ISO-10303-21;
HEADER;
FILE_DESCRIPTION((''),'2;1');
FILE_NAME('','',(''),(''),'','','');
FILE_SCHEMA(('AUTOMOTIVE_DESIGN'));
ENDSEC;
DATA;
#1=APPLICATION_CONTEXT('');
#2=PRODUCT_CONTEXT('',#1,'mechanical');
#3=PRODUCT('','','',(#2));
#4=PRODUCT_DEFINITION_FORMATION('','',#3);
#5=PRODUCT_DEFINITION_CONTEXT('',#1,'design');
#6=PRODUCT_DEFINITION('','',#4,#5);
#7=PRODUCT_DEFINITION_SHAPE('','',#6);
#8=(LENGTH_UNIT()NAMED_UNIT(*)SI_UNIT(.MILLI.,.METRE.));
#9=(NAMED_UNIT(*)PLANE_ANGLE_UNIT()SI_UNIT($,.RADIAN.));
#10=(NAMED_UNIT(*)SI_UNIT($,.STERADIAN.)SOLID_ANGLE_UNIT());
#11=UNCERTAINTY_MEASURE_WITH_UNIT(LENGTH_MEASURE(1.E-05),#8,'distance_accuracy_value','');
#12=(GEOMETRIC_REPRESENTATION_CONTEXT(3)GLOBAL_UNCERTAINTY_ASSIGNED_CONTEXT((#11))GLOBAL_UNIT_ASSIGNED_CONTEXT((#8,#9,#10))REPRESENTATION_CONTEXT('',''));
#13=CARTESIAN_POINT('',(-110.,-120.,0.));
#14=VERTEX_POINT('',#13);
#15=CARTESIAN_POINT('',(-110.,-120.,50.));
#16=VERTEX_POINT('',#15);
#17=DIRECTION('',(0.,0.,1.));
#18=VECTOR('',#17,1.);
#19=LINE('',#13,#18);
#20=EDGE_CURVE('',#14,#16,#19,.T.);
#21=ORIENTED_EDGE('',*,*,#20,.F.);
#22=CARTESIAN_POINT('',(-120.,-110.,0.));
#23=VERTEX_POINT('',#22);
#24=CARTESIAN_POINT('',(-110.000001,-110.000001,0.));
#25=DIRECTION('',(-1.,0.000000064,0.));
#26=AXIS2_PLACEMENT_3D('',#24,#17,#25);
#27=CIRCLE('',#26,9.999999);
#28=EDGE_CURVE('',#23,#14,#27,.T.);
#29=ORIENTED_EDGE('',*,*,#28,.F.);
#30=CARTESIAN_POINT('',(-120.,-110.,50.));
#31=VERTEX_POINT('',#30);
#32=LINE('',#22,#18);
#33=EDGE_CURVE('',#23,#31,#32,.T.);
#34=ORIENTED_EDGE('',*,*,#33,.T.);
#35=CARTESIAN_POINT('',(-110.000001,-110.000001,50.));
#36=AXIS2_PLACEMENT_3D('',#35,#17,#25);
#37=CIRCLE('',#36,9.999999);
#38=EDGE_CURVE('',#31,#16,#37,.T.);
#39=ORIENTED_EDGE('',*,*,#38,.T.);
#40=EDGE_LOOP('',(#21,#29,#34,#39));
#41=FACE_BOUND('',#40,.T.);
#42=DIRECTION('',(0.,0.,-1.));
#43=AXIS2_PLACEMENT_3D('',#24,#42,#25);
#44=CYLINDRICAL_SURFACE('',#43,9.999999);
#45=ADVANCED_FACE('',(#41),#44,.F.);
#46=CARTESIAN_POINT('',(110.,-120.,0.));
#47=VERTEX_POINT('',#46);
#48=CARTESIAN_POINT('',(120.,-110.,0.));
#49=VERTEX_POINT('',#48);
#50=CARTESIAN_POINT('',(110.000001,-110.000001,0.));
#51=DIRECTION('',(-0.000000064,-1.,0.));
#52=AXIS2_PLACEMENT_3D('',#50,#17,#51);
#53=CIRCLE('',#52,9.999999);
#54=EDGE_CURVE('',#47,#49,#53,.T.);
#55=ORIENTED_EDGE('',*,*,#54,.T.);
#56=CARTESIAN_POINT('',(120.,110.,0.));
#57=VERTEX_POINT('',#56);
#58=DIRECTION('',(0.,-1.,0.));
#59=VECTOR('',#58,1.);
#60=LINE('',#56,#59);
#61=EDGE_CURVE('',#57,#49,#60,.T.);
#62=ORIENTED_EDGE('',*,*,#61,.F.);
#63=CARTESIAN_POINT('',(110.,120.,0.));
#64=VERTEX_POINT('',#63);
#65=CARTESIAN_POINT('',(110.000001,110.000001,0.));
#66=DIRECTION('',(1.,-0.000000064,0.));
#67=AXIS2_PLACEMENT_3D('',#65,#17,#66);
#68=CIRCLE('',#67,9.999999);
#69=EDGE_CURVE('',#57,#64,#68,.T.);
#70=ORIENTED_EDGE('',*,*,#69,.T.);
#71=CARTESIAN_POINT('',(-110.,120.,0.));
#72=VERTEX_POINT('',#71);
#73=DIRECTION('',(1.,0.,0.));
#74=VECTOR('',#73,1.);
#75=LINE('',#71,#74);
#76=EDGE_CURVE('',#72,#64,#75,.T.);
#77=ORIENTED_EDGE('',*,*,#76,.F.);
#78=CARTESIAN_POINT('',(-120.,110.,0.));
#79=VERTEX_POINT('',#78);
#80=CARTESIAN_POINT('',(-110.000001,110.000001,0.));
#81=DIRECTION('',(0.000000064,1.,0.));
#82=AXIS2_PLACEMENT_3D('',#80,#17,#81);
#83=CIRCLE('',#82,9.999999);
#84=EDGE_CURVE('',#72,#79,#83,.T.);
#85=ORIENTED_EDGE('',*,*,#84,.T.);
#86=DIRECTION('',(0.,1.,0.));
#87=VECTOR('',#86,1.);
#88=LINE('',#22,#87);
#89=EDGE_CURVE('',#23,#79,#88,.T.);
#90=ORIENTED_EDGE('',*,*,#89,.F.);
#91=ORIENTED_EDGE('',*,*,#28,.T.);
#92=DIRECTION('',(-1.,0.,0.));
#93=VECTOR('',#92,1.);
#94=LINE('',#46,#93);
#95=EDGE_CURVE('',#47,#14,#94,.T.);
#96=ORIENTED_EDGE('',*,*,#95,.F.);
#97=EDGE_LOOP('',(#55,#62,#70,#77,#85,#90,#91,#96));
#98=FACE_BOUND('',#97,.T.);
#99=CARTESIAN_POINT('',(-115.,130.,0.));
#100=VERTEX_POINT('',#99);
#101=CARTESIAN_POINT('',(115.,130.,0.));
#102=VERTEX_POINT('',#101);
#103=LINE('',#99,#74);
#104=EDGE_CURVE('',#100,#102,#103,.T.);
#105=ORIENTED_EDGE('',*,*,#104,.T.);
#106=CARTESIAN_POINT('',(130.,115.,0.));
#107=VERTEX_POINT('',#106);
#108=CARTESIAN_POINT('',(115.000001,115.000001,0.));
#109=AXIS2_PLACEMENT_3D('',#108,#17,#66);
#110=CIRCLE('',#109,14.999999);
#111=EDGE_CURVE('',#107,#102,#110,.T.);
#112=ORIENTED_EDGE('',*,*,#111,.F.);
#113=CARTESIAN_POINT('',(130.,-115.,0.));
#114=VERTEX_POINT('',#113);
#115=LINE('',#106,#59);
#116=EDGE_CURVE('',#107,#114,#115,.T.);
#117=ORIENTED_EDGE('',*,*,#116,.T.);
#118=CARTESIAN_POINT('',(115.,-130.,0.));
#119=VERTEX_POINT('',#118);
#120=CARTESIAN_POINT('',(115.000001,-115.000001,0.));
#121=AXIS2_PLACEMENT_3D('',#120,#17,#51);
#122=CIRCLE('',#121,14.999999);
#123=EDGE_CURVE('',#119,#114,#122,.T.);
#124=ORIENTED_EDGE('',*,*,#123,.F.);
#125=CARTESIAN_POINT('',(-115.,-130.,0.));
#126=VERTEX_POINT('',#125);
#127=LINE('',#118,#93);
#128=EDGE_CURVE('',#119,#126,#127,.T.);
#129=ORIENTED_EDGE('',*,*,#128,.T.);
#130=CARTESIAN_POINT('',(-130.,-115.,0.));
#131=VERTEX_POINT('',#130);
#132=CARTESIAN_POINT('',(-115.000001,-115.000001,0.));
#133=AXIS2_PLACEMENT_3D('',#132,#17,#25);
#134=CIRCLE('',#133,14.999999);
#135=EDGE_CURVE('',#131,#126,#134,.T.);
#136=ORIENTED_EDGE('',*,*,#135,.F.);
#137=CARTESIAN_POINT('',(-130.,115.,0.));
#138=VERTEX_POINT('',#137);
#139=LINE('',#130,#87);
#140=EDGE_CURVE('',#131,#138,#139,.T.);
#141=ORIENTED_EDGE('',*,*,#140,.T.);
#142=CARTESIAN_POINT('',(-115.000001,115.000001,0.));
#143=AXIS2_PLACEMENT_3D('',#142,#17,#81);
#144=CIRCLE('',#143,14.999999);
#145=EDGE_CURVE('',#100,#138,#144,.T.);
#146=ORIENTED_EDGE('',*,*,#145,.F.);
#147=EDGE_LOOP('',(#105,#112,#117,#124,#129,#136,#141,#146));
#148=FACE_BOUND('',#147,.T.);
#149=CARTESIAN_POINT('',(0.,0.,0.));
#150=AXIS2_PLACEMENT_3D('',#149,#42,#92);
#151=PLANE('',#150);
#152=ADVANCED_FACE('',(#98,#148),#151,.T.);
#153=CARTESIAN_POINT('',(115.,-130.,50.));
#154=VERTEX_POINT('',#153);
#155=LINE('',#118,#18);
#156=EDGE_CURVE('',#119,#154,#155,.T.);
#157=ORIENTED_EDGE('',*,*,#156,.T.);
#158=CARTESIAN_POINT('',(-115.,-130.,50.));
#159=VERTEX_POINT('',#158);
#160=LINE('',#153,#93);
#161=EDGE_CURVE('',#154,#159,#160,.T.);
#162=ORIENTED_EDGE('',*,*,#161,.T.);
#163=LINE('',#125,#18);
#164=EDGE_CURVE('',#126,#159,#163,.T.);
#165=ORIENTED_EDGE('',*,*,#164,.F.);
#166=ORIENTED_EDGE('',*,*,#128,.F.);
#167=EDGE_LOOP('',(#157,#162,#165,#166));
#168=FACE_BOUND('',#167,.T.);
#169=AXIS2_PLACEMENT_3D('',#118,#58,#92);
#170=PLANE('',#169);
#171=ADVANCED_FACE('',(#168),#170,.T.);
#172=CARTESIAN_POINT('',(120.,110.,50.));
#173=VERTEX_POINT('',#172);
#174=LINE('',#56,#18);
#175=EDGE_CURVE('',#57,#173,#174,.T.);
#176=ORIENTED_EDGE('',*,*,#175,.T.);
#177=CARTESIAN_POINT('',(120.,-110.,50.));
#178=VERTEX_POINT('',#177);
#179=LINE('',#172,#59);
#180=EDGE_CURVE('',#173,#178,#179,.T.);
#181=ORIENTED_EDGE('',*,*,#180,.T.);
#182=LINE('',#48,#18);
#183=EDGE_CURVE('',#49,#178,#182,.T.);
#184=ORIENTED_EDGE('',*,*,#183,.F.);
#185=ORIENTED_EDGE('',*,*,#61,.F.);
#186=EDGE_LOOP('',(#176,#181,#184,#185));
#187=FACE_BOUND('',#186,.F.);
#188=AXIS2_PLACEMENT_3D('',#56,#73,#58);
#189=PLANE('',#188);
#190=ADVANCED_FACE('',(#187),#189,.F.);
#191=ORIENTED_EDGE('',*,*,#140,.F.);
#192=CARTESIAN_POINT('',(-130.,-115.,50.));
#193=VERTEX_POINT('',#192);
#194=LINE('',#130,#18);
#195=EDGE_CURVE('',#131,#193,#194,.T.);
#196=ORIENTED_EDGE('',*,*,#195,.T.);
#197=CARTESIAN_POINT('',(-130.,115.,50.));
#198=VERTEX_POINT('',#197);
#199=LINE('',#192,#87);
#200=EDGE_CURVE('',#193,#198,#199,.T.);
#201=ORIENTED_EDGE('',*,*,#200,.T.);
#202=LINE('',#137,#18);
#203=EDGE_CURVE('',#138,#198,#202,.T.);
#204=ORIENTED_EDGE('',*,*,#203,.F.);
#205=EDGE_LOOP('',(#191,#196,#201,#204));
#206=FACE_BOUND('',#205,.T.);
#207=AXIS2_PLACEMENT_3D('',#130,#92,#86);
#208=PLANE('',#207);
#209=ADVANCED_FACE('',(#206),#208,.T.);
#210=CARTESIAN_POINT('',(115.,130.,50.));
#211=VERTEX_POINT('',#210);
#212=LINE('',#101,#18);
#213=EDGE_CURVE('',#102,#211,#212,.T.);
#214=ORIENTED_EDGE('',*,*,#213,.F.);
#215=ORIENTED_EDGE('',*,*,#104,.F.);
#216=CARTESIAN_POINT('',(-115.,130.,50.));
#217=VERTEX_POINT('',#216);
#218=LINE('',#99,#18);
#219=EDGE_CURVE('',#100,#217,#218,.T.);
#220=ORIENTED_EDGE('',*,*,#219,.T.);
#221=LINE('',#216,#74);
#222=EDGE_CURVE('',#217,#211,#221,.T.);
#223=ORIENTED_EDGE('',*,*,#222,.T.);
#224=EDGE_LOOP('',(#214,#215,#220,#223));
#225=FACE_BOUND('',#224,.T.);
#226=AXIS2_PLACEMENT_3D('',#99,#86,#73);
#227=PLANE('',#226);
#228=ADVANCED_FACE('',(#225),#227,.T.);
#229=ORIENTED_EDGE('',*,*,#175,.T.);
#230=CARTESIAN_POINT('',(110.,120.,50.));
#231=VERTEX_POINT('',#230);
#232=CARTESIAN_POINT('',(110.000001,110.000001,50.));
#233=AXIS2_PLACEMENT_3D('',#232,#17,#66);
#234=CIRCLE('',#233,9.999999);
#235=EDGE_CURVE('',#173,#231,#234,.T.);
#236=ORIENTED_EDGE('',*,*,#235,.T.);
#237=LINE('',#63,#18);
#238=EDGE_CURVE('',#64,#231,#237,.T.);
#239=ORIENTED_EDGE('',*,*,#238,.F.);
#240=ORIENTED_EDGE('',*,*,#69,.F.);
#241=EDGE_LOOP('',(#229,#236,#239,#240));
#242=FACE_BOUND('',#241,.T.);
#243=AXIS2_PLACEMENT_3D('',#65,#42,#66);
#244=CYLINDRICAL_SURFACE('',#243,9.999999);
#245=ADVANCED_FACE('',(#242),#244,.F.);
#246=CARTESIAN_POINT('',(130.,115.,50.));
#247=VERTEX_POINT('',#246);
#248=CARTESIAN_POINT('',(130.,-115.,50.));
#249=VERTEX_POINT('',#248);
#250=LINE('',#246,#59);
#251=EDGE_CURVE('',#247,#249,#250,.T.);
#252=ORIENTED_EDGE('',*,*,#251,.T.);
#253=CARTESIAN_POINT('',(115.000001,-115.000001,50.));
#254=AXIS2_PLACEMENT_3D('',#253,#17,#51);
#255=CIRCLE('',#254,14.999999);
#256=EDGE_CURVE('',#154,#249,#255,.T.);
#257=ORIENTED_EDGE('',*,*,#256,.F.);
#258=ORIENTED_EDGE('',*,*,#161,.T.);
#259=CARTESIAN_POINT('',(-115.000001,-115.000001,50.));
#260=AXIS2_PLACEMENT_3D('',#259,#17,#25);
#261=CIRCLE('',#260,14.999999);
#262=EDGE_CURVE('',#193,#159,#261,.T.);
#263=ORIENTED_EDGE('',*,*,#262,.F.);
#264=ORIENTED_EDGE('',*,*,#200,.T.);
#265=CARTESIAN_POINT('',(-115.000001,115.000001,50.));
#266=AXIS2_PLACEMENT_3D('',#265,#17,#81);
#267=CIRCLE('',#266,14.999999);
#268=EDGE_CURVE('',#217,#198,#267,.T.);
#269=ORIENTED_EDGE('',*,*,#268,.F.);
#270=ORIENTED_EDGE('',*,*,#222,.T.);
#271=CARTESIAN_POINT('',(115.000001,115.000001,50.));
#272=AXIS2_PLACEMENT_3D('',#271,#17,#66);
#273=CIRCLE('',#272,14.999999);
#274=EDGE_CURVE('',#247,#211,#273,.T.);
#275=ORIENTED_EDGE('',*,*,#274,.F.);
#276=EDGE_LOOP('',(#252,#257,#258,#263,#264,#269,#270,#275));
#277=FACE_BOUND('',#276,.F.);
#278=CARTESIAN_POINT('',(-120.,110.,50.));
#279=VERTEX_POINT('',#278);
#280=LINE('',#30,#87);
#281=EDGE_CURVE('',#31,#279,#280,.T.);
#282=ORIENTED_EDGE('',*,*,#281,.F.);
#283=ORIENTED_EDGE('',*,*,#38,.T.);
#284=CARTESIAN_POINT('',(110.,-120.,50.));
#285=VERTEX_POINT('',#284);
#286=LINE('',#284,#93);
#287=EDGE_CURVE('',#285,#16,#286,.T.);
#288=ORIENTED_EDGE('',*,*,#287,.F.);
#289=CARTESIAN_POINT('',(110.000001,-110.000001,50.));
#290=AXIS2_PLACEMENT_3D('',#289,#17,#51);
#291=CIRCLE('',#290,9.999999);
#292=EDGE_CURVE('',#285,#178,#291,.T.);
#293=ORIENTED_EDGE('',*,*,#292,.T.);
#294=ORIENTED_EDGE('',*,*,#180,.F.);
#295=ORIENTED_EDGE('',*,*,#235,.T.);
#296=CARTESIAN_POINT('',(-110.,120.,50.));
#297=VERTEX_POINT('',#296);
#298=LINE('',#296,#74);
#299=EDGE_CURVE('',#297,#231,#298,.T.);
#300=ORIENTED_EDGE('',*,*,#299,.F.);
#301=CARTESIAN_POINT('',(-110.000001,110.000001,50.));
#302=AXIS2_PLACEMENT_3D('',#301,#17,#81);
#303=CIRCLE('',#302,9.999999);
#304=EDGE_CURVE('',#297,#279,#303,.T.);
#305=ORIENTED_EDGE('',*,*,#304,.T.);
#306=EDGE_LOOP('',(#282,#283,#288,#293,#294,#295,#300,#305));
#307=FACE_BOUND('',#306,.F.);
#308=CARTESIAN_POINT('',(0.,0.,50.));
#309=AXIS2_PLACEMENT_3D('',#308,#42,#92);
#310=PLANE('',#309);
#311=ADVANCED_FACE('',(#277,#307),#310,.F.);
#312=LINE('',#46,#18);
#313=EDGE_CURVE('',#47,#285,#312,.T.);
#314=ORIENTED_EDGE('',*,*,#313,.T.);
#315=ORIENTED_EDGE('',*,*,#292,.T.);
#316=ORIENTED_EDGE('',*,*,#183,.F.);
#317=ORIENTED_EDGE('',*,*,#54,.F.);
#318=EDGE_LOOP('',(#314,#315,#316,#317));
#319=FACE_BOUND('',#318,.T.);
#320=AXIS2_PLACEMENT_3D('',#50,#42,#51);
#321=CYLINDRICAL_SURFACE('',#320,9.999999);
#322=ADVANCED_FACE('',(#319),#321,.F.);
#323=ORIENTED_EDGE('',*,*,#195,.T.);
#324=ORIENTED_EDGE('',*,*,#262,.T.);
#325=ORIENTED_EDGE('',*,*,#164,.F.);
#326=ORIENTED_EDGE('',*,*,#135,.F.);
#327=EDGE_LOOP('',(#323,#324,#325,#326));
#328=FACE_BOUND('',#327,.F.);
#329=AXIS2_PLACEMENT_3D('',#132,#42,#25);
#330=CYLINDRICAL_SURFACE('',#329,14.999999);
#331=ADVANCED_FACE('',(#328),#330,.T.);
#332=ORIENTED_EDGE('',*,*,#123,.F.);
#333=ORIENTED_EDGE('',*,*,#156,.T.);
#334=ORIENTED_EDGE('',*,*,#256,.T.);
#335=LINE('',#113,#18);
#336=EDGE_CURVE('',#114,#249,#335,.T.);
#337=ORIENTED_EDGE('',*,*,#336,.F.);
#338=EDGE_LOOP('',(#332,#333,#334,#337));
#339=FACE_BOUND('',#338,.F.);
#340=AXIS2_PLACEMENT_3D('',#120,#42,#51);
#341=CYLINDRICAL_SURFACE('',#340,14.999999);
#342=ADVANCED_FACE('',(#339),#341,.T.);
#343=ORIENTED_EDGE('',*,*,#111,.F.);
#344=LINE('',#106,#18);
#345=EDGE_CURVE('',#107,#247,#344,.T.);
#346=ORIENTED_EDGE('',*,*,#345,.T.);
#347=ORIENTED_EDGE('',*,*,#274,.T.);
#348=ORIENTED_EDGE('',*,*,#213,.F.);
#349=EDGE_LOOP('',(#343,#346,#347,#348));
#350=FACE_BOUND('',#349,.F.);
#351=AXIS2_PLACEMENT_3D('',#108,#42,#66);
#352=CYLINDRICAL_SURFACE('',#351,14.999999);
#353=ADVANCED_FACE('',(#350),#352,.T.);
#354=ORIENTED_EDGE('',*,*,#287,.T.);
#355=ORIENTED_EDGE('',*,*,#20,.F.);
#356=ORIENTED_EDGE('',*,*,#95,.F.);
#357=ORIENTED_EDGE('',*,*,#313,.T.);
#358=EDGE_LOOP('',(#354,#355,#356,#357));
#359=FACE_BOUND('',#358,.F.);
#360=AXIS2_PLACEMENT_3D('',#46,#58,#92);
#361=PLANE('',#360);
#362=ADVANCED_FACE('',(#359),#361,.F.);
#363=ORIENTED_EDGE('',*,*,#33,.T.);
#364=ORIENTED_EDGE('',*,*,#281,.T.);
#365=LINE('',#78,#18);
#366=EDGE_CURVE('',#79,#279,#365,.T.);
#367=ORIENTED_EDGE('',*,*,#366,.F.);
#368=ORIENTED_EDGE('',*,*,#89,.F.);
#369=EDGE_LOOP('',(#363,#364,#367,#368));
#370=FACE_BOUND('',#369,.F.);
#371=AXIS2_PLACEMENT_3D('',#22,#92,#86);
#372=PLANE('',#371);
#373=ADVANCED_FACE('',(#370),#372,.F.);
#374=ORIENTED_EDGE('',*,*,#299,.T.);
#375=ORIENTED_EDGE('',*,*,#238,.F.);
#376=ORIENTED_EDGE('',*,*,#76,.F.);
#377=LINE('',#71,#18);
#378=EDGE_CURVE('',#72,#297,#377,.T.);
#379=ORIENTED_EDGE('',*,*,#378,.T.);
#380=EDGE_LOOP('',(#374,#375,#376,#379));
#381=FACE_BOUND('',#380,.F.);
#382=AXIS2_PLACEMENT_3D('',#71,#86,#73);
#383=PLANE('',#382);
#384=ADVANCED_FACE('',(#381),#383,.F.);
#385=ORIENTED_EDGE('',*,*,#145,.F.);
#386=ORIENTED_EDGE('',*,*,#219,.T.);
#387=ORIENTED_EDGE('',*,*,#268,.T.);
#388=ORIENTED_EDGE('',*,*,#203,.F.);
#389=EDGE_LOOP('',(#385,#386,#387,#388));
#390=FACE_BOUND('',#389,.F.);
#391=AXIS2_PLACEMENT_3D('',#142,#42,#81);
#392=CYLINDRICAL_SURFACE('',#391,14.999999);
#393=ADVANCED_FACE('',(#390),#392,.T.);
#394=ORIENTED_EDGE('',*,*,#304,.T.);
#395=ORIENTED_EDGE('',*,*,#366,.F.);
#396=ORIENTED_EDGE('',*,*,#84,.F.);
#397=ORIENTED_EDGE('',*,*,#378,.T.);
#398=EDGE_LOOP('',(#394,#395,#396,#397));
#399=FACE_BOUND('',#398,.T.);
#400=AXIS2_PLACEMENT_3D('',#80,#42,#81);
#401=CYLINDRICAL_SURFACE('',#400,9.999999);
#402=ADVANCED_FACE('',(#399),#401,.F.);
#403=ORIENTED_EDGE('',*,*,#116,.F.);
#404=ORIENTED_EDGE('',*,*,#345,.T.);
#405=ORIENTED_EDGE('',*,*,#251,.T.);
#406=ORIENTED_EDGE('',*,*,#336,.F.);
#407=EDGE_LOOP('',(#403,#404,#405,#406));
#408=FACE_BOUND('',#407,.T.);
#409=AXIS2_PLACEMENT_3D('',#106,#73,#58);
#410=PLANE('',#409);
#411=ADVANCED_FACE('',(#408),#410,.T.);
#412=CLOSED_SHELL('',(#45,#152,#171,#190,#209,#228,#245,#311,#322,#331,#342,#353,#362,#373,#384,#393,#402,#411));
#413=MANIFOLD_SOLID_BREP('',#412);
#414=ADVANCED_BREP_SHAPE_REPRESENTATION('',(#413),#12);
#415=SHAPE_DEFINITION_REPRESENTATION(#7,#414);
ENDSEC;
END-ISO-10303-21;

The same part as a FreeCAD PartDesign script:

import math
import FreeCAD as App
import Part
import Sketcher
from FreeCAD import Vector

doc = App.newDocument("Part")
body = doc.addObject("PartDesign::Body", "Body")

# Sketch on XY plane
sketch1 = body.newObject("Sketcher::SketchObject", "Sketch")
sketch1.AttachmentSupport = (doc.getObject("XY_Plane"), [""])
sketch1.MapMode = "FlatFace"
sketch1.addGeometry(Part.LineSegment(Vector(115, 130, 0), Vector(-115, 130, 0)), False)
sketch1.addGeometry(Part.ArcOfCircle(Part.Circle(Vector(-115, 115, 0), Vector(0, 0, 1), 15), math.radians(90), math.radians(180)), False)
sketch1.addGeometry(Part.LineSegment(Vector(-130, 115, 0), Vector(-130, -115, 0)), False)
sketch1.addGeometry(Part.ArcOfCircle(Part.Circle(Vector(-115, -115, 0), Vector(0, 0, 1), 15), math.radians(180), math.radians(270)), False)
sketch1.addGeometry(Part.LineSegment(Vector(-115, -130, 0), Vector(115, -130, 0)), False)
sketch1.addGeometry(Part.ArcOfCircle(Part.Circle(Vector(115, -115, 0), Vector(0, 0, 1), 15), math.radians(-90), math.radians(0)), False)
sketch1.addGeometry(Part.LineSegment(Vector(130, -115, 0), Vector(130, 115, 0)), False)
sketch1.addGeometry(Part.ArcOfCircle(Part.Circle(Vector(115, 115, 0), Vector(0, 0, 1), 15), math.radians(0), math.radians(90)), False)
sketch1.addGeometry(Part.LineSegment(Vector(-110, 120, 0), Vector(110, 120, 0)), False)
sketch1.addGeometry(Part.ArcOfCircle(Part.Circle(Vector(110, 110, 0), Vector(0, 0, 1), 10), math.radians(0), math.radians(90)), False)
sketch1.addGeometry(Part.LineSegment(Vector(120, 110, 0), Vector(120, -110, 0)), False)
sketch1.addGeometry(Part.ArcOfCircle(Part.Circle(Vector(110, -110, 0), Vector(0, 0, 1), 10), math.radians(-90), math.radians(0)), False)
sketch1.addGeometry(Part.LineSegment(Vector(110, -120, 0), Vector(-110, -120, 0)), False)
sketch1.addGeometry(Part.ArcOfCircle(Part.Circle(Vector(-110, -110, 0), Vector(0, 0, 1), 10), math.radians(180), math.radians(270)), False)
sketch1.addGeometry(Part.LineSegment(Vector(-120, -110, 0), Vector(-120, 110, 0)), False)
sketch1.addGeometry(Part.ArcOfCircle(Part.Circle(Vector(-110, 110, 0), Vector(0, 0, 1), 10), math.radians(90), math.radians(180)), False)
sketch1.addConstraint(Sketcher.Constraint("Tangent", 0, 2, 1, 1))
sketch1.addConstraint(Sketcher.Constraint("Tangent", 1, 2, 2, 1))
sketch1.addConstraint(Sketcher.Constraint("Tangent", 2, 2, 3, 1))
sketch1.addConstraint(Sketcher.Constraint("Tangent", 3, 2, 4, 1))
sketch1.addConstraint(Sketcher.Constraint("Tangent", 4, 2, 5, 1))
sketch1.addConstraint(Sketcher.Constraint("Tangent", 5, 2, 6, 1))
sketch1.addConstraint(Sketcher.Constraint("Tangent", 6, 2, 7, 1))
sketch1.addConstraint(Sketcher.Constraint("Tangent", 7, 2, 0, 1))
sketch1.addConstraint(Sketcher.Constraint("Tangent", 8, 2, 9, 2))
sketch1.addConstraint(Sketcher.Constraint("Tangent", 9, 1, 10, 1))
sketch1.addConstraint(Sketcher.Constraint("Tangent", 10, 2, 11, 2))
sketch1.addConstraint(Sketcher.Constraint("Tangent", 11, 1, 12, 1))
sketch1.addConstraint(Sketcher.Constraint("Tangent", 12, 2, 13, 2))
sketch1.addConstraint(Sketcher.Constraint("Tangent", 13, 1, 14, 1))
sketch1.addConstraint(Sketcher.Constraint("Tangent", 14, 2, 15, 2))
sketch1.addConstraint(Sketcher.Constraint("Tangent", 15, 1, 8, 1))
sketch1.addConstraint(Sketcher.Constraint("Horizontal", 0))
sketch1.addConstraint(Sketcher.Constraint("Vertical", 2))
sketch1.addConstraint(Sketcher.Constraint("Horizontal", 4))
sketch1.addConstraint(Sketcher.Constraint("Vertical", 6))
sketch1.addConstraint(Sketcher.Constraint("Horizontal", 8))
sketch1.addConstraint(Sketcher.Constraint("Vertical", 10))
sketch1.addConstraint(Sketcher.Constraint("Horizontal", 12))
sketch1.addConstraint(Sketcher.Constraint("Vertical", 14))
sketch1.addConstraint(Sketcher.Constraint("Equal", 1, 3))
sketch1.addConstraint(Sketcher.Constraint("Equal", 3, 5))
sketch1.addConstraint(Sketcher.Constraint("Equal", 5, 7))
sketch1.addConstraint(Sketcher.Constraint("Equal", 9, 11))
sketch1.addConstraint(Sketcher.Constraint("Equal", 11, 13))
sketch1.addConstraint(Sketcher.Constraint("Equal", 13, 15))
sketch1.addConstraint(Sketcher.Constraint("Symmetric", 1, 3, 5, 3, -1, 1))
sketch1.addConstraint(Sketcher.Constraint("Symmetric", 9, 3, 13, 3, -1, 1))
sketch1.addConstraint(Sketcher.Constraint("Equal", 4, 2))
sketch1.addConstraint(Sketcher.Constraint("Equal", 12, 10))
sketch1.addConstraint(Sketcher.Constraint("Radius", 1, 14.999999))
sketch1.addConstraint(Sketcher.Constraint("Radius", 9, 9.999999))
sketch1.addConstraint(Sketcher.Constraint("DistanceX", 0, 2, 0, 1, 230.0))
sketch1.addConstraint(Sketcher.Constraint("DistanceX", 8, 1, 8, 2, 220.0))
pad1 = body.newObject("PartDesign::Pad", "Pad")
pad1.Profile = sketch1
pad1.Length = 50

doc.recompute()
